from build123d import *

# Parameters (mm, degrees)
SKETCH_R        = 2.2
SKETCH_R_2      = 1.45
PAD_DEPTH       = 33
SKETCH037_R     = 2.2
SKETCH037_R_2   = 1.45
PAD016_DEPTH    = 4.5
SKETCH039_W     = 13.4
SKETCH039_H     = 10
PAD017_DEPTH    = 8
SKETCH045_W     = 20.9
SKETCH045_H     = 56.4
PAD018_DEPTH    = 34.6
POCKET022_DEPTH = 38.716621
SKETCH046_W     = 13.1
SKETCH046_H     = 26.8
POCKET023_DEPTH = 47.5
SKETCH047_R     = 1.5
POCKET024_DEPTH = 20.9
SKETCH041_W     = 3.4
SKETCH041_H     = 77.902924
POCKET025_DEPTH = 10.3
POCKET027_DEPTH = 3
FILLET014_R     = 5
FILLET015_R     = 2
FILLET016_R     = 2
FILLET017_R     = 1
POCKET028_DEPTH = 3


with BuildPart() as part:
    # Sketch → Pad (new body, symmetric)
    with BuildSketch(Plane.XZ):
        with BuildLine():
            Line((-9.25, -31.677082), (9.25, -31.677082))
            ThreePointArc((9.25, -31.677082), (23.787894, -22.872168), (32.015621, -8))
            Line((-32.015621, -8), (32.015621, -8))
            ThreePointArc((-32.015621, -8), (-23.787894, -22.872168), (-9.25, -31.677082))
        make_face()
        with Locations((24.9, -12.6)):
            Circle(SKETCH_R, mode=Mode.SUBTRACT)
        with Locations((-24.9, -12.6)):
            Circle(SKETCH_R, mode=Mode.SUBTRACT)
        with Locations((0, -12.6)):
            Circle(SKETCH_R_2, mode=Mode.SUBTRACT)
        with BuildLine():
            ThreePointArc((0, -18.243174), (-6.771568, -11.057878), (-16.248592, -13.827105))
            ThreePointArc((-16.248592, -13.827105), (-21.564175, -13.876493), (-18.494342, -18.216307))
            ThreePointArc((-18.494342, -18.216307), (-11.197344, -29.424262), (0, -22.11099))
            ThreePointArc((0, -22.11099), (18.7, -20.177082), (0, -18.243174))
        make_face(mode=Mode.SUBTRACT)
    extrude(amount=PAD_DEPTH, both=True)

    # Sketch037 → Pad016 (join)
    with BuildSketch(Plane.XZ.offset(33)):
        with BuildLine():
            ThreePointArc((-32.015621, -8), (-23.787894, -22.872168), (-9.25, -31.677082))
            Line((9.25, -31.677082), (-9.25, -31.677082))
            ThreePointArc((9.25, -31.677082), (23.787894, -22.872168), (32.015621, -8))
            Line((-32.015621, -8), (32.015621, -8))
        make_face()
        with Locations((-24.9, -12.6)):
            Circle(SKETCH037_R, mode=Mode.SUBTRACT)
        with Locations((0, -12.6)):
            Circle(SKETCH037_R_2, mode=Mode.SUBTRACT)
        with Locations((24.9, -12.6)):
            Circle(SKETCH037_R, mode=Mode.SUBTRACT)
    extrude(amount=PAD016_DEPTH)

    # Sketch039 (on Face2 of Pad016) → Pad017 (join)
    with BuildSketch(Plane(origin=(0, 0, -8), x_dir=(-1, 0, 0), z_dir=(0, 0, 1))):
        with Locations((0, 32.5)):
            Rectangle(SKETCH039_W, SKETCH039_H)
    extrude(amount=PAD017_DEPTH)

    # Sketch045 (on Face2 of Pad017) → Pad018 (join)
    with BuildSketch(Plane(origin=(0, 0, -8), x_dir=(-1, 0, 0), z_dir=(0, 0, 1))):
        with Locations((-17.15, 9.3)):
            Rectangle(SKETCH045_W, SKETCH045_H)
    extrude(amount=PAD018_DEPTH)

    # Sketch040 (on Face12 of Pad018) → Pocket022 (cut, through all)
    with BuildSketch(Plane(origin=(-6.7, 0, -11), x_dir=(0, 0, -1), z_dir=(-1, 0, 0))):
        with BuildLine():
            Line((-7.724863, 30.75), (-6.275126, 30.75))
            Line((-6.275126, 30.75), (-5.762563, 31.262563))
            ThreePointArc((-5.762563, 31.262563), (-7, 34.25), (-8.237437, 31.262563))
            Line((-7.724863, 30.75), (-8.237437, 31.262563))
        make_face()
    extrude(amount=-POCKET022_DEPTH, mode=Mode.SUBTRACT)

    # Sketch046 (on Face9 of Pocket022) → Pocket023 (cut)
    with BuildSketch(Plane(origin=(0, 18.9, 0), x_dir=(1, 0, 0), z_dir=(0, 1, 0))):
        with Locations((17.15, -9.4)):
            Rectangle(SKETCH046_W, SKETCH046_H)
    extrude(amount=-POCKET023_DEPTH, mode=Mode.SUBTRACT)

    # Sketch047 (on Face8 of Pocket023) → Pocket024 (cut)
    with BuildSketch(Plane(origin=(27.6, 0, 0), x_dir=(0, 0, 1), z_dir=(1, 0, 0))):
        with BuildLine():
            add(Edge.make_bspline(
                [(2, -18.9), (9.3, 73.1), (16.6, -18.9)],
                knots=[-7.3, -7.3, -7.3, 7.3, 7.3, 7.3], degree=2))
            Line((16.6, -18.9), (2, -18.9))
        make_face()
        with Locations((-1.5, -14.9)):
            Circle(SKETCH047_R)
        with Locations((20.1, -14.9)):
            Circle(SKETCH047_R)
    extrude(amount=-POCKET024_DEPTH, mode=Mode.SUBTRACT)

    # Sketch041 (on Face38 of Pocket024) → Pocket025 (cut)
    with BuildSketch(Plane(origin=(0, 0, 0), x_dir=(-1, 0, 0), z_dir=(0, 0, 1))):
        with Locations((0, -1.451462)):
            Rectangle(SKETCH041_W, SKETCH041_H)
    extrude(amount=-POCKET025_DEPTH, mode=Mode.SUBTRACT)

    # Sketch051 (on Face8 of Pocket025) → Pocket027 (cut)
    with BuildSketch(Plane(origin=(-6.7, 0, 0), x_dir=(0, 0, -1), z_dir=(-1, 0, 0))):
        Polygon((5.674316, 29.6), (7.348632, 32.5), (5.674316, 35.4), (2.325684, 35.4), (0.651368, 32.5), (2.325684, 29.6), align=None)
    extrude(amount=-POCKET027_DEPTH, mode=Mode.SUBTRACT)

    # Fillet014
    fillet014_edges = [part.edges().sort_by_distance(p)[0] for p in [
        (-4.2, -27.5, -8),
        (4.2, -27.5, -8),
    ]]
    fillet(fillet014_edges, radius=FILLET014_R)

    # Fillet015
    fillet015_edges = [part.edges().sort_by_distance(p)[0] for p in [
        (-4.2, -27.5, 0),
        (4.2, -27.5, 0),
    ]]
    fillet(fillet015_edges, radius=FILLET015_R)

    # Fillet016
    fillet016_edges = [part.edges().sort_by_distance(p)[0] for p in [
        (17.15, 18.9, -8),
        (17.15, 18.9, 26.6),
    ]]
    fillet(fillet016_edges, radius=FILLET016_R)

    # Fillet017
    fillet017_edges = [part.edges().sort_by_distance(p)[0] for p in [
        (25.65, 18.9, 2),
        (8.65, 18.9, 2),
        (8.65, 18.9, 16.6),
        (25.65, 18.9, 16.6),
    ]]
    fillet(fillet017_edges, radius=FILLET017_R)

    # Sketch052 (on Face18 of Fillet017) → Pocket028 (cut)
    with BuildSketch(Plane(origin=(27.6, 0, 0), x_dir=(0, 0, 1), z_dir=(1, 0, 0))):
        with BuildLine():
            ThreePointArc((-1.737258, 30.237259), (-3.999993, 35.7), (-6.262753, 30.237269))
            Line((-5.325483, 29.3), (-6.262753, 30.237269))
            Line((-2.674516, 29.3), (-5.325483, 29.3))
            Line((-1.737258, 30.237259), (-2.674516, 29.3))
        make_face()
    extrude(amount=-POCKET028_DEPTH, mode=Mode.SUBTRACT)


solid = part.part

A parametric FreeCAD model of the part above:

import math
import FreeCAD as App
import Part
import Sketcher

V = App.Vector
Q = App.Units.Quantity


def edges_at(feature, points):
    """Names of the edges that pass closest to the given points."""
    edges = feature.Shape.Edges
    near = lambda p: min(range(len(edges)), key=lambda i: edges[i].distToShape(Part.Vertex(*p))[0])
    return sorted({f"Edge{near(p) + 1}" for p in points})


def add_polygon(sketch, points):
    """Adds a closed chain of lines whose ends are joined by coincident constraints."""
    first, n = sketch.GeometryCount, len(points)
    for a, b in zip(points, points[1:] + points[:1]):
        sketch.addGeometry(Part.LineSegment(App.Vector(*a, 0), App.Vector(*b, 0)), False)
    for i in range(n):
        sketch.addConstraint(Sketcher.Constraint("Coincident", first + i, 2, first + (i + 1) % n, 1))

doc = App.newDocument("Part")
body = doc.addObject("PartDesign::Body", "Body")

# Sketch on XZ plane
sketch1 = body.newObject("Sketcher::SketchObject", "Sketch")
sketch1.AttachmentSupport = (doc.getObject("XZ_Plane"), [""])
sketch1.MapMode = "FlatFace"
sketch1.addGeometry([
    Part.LineSegment(V(-9.2, -31.7, 0), V(9.2, -31.7, 0)),  # 0
    Part.ArcOfCircle(Part.Circle(V(0, 0, 0), V(0, 0, 1), 33), math.radians(-74), math.radians(-14)),  # 1
    Part.LineSegment(V(32, -8, 0), V(-32, -8, 0)),  # 2
    Part.ArcOfCircle(Part.Circle(V(0, 0, 0), V(0, 0, 1), 33), math.radians(-166), math.radians(-106)),  # 3
    Part.ArcOfCircle(Part.Circle(V(-9.2, -20.2, 0), V(0, 0, 1), 9.4), math.radians(12), math.radians(138)),  # 4
    Part.ArcOfCircle(Part.Circle(V(9.2, -20.2, 0), V(0, 0, 1), 9.5), math.radians(-168), math.radians(168)),  # 5
    Part.ArcOfCircle(Part.Circle(V(-9.2, -20.2, 0), V(0, 0, 1), 9.4), math.radians(168), math.radians(348)),  # 6
    Part.ArcOfCircle(Part.Circle(V(-18.9, -15.2, 0), V(0, 0, 1), 3), math.radians(28), math.radians(278)),  # 7
    Part.Circle(V(-24.9, -12.6, 0), V(0, 0, 1), 2.2),  # 8
    Part.Circle(V(0, -12.6, 0), V(0, 0, 1), 1.4),  # 9
    Part.Circle(V(24.9, -12.6, 0), V(0, 0, 1), 2.2),  # 10
], False)
sketch1.addConstraint([
    Sketcher.Constraint("Coincident", 0, 2, 1, 1),
    Sketcher.Constraint("Coincident", 1, 2, 2, 1),
    Sketcher.Constraint("Coincident", 2, 2, 3, 1),
    Sketcher.Constraint("Coincident", 3, 2, 0, 1),
    Sketcher.Constraint("Coincident", 4, 1, 5, 2),
    Sketcher.Constraint("Coincident", 5, 1, 6, 2),
    Sketcher.Constraint("Coincident", 6, 1, 7, 2),
    Sketcher.Constraint("Coincident", 7, 1, 4, 2),
    Sketcher.Constraint("Horizontal", 0),
    Sketcher.Constraint("Horizontal", 2),
    Sketcher.Constraint("Coincident", 1, 3, -1, 1),
    Sketcher.Constraint("Coincident", 3, 3, -1, 1),
    Sketcher.Constraint("Coincident", 6, 3, 4, 3),
    Sketcher.Constraint("Equal", 1, 3),
    Sketcher.Constraint("Equal", 4, 5),
    Sketcher.Constraint("Equal", 5, 6),
    Sketcher.Constraint("Equal", 8, 10),
    Sketcher.Constraint("Symmetric", 4, 3, 5, 3, -2),
    Sketcher.Constraint("Symmetric", 8, 3, 10, 3, -2),
    Sketcher.Constraint("PointOnObject", 9, 3, -2),
    Sketcher.Constraint("Horizontal", 8, 3, 9, 3),
    Sketcher.Constraint("Vertical", 5, 3, 0, 2),
    Sketcher.Constraint("Radius", 7, Q("3 mm")),
    Sketcher.Constraint("Diameter", 8, Q("4.4 mm")),
    Sketcher.Constraint("Diameter", 9, Q("2.9 mm")),
    Sketcher.Constraint("Radius", 4, Q("9.45 mm")),
    Sketcher.Constraint("DistanceX", 0, 1, 0, 2, Q("18.5 mm")),
    Sketcher.Constraint("DistanceY", 1, 2, -1, 1, Q("8 mm")),
    Sketcher.Constraint("DistanceX", 8, 3, -1, 1, Q("24.9 mm")),
    Sketcher.Constraint("DistanceY", 8, 3, -1, 1, Q("12.6 mm")),
    Sketcher.Constraint("DistanceY", 0, 2, 5, 3, Q("11.5 mm")),
    Sketcher.Constraint("Radius", 1, Q("33.000004 mm")),
    Sketcher.Constraint("DistanceX", 7, 1, -1, 1, Q("16.248592 mm")),
    Sketcher.Constraint("DistanceX", 7, 3, 6, 3, Q("9.643458 mm")),
])
pad1 = body.newObject("PartDesign::Pad", "Pad")
pad1.Profile = sketch1
pad1.Length = 66
pad1.Midplane = True

# Sketch on XZ plane
sketch2 = body.newObject("Sketcher::SketchObject", "Sketch001")
sketch2.AttachmentSupport = (doc.getObject("XZ_Plane"), [""])
sketch2.MapMode = "FlatFace"
sketch2.AttachmentOffset = App.Placement(V(0, 0, 33), App.Rotation())
sketch2.addGeometry([
    Part.ArcOfCircle(Part.Circle(V(0, 0, 0), V(0, 0, 1), 33), math.radians(-166), math.radians(-106)),  # 0
    Part.LineSegment(V(-9.2, -31.7, 0), V(9.2, -31.7, 0)),  # 1
    Part.ArcOfCircle(Part.Circle(V(0, 0, 0), V(0, 0, 1), 33), math.radians(-74), math.radians(-14)),  # 2
    Part.LineSegment(V(32, -8, 0), V(-32, -8, 0)),  # 3
    Part.Circle(V(-24.9, -12.6, 0), V(0, 0, 1), 2.2),  # 4
    Part.Circle(V(0, -12.6, 0), V(0, 0, 1), 1.4),  # 5
    Part.Circle(V(24.9, -12.6, 0), V(0, 0, 1), 2.2),  # 6
], False)
sketch2.addConstraint([
    Sketcher.Constraint("Coincident", 0, 2, 1, 1),
    Sketcher.Constraint("Coincident", 1, 2, 2, 1),
    Sketcher.Constraint("Coincident", 2, 2, 3, 1),
    Sketcher.Constraint("Coincident", 3, 2, 0, 1),
    Sketcher.Constraint("Horizontal", 1),
    Sketcher.Constraint("Horizontal", 3),
    Sketcher.Constraint("Coincident", 0, 3, -1, 1),
    Sketcher.Constraint("Coincident", 2, 3, -1, 1),
    Sketcher.Constraint("Equal", 0, 2),
    Sketcher.Constraint("Equal", 4, 6),
    Sketcher.Constraint("Symmetric", 4, 3, 6, 3, -2),
    Sketcher.Constraint("PointOnObject", 5, 3, -2),
    Sketcher.Constraint("Horizontal", 4, 3, 5, 3),
    Sketcher.Constraint("Diameter", 4, Q("4.4 mm")),
    Sketcher.Constraint("Diameter", 5, Q("2.9 mm")),
    Sketcher.Constraint("DistanceX", 1, 1, 1, 2, Q("18.5 mm")),
    Sketcher.Constraint("DistanceY", 2, 2, -1, 1, Q("8 mm")),
    Sketcher.Constraint("DistanceX", 4, 3, -1, 1, Q("24.9 mm")),
    Sketcher.Constraint("DistanceY", 4, 3, -1, 1, Q("12.6 mm")),
    Sketcher.Constraint("Radius", 0, Q("33.000004 mm")),
])
pad2 = body.newObject("PartDesign::Pad", "Pad001")
pad2.Profile = sketch2
pad2.Length = 4.5

# Sketch on XY plane
sketch3 = body.newObject("Sketcher::SketchObject", "Sketch002")
sketch3.AttachmentSupport = (doc.getObject("XY_Plane"), [""])
sketch3.MapMode = "FlatFace"
sketch3.AttachmentOffset = App.Placement(V(0, 0, -8), App.Rotation())
add_polygon(sketch3, [(7, -38), (7, -28), (-7, -28), (-7, -38)])  # lines 0-3
sketch3.addConstraint([
    Sketcher.Constraint("Vertical", 0),
    Sketcher.Constraint("Horizontal", 1),
    Sketcher.Constraint("Vertical", 2),
    Sketcher.Constraint("Horizontal", 3),
    Sketcher.Constraint("DistanceY", 0, 1, 0, 2, Q("10 mm")),
    Sketcher.Constraint("DistanceX", 1, 2, 1, 1, Q("13.4 mm")),
    Sketcher.Constraint("DistanceX", -1, 1, 0, 2, Q("6.7 mm")),
    Sketcher.Constraint("DistanceY", 0, 2, -1, 1, Q("27.5 mm")),
])
pad3 = body.newObject("PartDesign::Pad", "Pad002")
pad3.Profile = sketch3
pad3.Length = 8

# Sketch on XY plane
sketch4 = body.newObject("Sketcher::SketchObject", "Sketch003")
sketch4.AttachmentSupport = (doc.getObject("XY_Plane"), [""])
sketch4.MapMode = "FlatFace"
sketch4.AttachmentOffset = App.Placement(V(0, 0, -8), App.Rotation())
add_polygon(sketch4, [(28, -38), (28, 19), (7, 19), (7, -38)])  # lines 0-3
sketch4.addConstraint([
    Sketcher.Constraint("Vertical", 0),
    Sketcher.Constraint("Horizontal", 1),
    Sketcher.Constraint("Vertical", 2),
    Sketcher.Constraint("Horizontal", 3),
    Sketcher.Constraint("DistanceX", 1, 2, 1, 1, Q("20.9 mm")),
    Sketcher.Constraint("DistanceY", 0, 1, 0, 2, Q("56.4 mm")),
    Sketcher.Constraint("DistanceX", -1, 1, 0, 2, Q("27.6 mm")),
    Sketcher.Constraint("DistanceY", -1, 1, 0, 2, Q("18.9 mm")),
])
pad4 = body.newObject("PartDesign::Pad", "Pad003")
pad4.Profile = sketch4
pad4.Length = 34.6

# Sketch on YZ plane
sketch5 = body.newObject("Sketcher::SketchObject", "Sketch004")
sketch5.AttachmentSupport = (doc.getObject("YZ_Plane"), [""])
sketch5.MapMode = "FlatFace"
sketch5.AttachmentOffset = App.Placement(V(0, 0, -6.7), App.Rotation())
sketch5.addGeometry([
    Part.LineSegment(V(-30.8, -3.3, 0), V(-30.8, -4.7, 0)),
    Part.LineSegment(V(-30.8, -4.7, 0), V(-31.3, -5.2, 0)),
    Part.ArcOfCircle(Part.Circle(V(-32.5, -4, 0), V(0, 0, 1), 1.8), math.radians(45), math.radians(315)),
    Part.LineSegment(V(-31.3, -2.8, 0), V(-30.8, -3.3, 0)),
], False)
sketch5.addConstraint([
    Sketcher.Constraint("Coincident", 0, 2, 1, 1),
    Sketcher.Constraint("Tangent", 1, 2, 2, 2),
    Sketcher.Constraint("Coincident", 2, 1, 3, 1),
    Sketcher.Constraint("Coincident", 3, 2, 0, 1),
    Sketcher.Constraint("Vertical", 0),
    Sketcher.Constraint("Vertical", 1, 2, 2, 1),
    Sketcher.Constraint("Angle", 1, Q("-135 deg")),
    Sketcher.Constraint("Radius", 2, Q("1.75 mm")),
    Sketcher.Constraint("DistanceY", 2, 3, -1, 1, Q("4 mm")),
    Sketcher.Constraint("DistanceX", 2, 3, -1, 1, Q("32.5 mm")),
    Sketcher.Constraint("DistanceX", 0, 2, -1, 1, Q("30.75 mm")),
    Sketcher.Constraint("DistanceY", 1, 2, 3, 2, Q("1.9623 mm")),
])
pocket1 = body.newObject("PartDesign::Pocket", "Pocket")
pocket1.Profile = sketch5
pocket1.Type = "ThroughAll"
pocket1.Reversed = True

# Sketch on XZ plane
sketch6 = body.newObject("Sketcher::SketchObject", "Sketch005")
sketch6.AttachmentSupport = (doc.getObject("XZ_Plane"), [""])
sketch6.MapMode = "FlatFace"
sketch6.AttachmentOffset = App.Placement(V(0, 0, -18.9), App.Rotation())
add_polygon(sketch6, [(11, -4), (11, 23), (24, 23), (24, -4)])  # lines 0-3
sketch6.addConstraint([
    Sketcher.Constraint("Vertical", 0),
    Sketcher.Constraint("Horizontal", 1),
    Sketcher.Constraint("Vertical", 2),
    Sketcher.Constraint("Horizontal", 3),
    Sketcher.Constraint("DistanceX", 1, 1, 1, 2, Q("13.1 mm")),
    Sketcher.Constraint("DistanceY", 0, 1, 0, 2, Q("26.8 mm")),
    Sketcher.Constraint("DistanceY", 2, 2, -1, 1, Q("4 mm")),
    Sketcher.Constraint("DistanceX", -1, 1, 0, 2, Q("10.6 mm")),
])
pocket2 = body.newObject("PartDesign::Pocket", "Pocket001")
pocket2.Profile = sketch6
pocket2.Length = 47.5
pocket2.Reversed = True

# Sketch on YZ plane
sketch7 = body.newObject("Sketcher::SketchObject", "Sketch006")
sketch7.AttachmentSupport = (doc.getObject("YZ_Plane"), [""])
sketch7.MapMode = "FlatFace"
sketch7.AttachmentOffset = App.Placement(V(0, 0, 27.6), App.Rotation())
sketch7.addGeometry([
    Part.BSplineCurve([V(18.9, 2, 0), V(-73.1, 9.3, 0), V(18.9, 16.6, 0)], [3, 3], [-7.3, 7.3], False, 2, [1, 1, 1], False),
    Part.LineSegment(V(18.9, 2, 0), V(18.9, 16.6, 0)),
    Part.Circle(V(14.9, -1.5, 0), V(0, 0, 1), 1.5),
    Part.Circle(V(14.9, 20.1, 0), V(0, 0, 1), 1.5),
], False)
sketch7.addConstraint([
    Sketcher.Constraint("Block", 0),
    Sketcher.Constraint("Coincident", 0, 1, 1, 1),
    Sketcher.Constraint("Coincident", 1, 2, 0, 2),
    Sketcher.Constraint("Equal", 2, 3),
    Sketcher.Constraint("Vertical", 2, 3, 3, 3),
    Sketcher.Constraint("Diameter", 2, Q("3 mm")),
    Sketcher.Constraint("DistanceX", 3, 3, 1, 2, Q("4 mm")),
    Sketcher.Constraint("DistanceY", 2, 3, -1, 1, Q("1.5 mm")),
    Sketcher.Constraint("DistanceY", -1, 1, 3, 3, Q("20.1 mm")),
])
pocket3 = body.newObject("PartDesign::Pocket", "Pocket002")
pocket3.Profile = sketch7
pocket3.Length = 20.9

# Sketch on XY plane
sketch8 = body.newObject("Sketcher::SketchObject", "Sketch007")
sketch8.AttachmentSupport = (doc.getObject("XY_Plane"), [""])
sketch8.MapMode = "FlatFace"
add_polygon(sketch8, [(1.7, -37.5), (1.7, 40.4), (-1.7, 40.4), (-1.7, -37.5)])  # lines 0-3
sketch8.addConstraint([
    Sketcher.Constraint("Vertical", 0),
    Sketcher.Constraint("Horizontal", 1),
    Sketcher.Constraint("Vertical", 2),
    Sketcher.Constraint("Horizontal", 3),
    Sketcher.Constraint("DistanceX", 1, 2, 1, 1, Q("3.4 mm")),
    Sketcher.Constraint("DistanceX", -1, 1, 0, 2, Q("1.7 mm")),
    Sketcher.Constraint("DistanceY", 2, 2, -1, 1, Q("37.5 mm")),
    Sketcher.Constraint("DistanceY", 0, 1, 0, 2, Q("77.902924 mm")),
])
pocket4 = body.newObject("PartDesign::Pocket", "Pocket003")
pocket4.Profile = sketch8
pocket4.Length = 10.3

# Sketch on YZ plane
sketch9 = body.newObject("Sketcher::SketchObject", "Sketch008")
sketch9.AttachmentSupport = (doc.getObject("YZ_Plane"), [""])
sketch9.MapMode = "FlatFace"
sketch9.AttachmentOffset = App.Placement(V(0, 0, -6.7), App.Rotation())
add_polygon(sketch9, [(-29.6, -5.7), (-32.5, -7.3), (-35.4, -5.7), (-35.4, -2.3), (-32.5, -0.7), (-29.6, -2.3)])  # lines 0-5
sketch9.addConstraint([
    Sketcher.Constraint("Vertical", 2),
    Sketcher.Constraint("Vertical", 5),
    Sketcher.Constraint("Parallel", 0, 3),
    Sketcher.Constraint("Parallel", 1, 4),
    Sketcher.Constraint("Horizontal", 2, 2, 4, 2),
    Sketcher.Constraint("Horizontal", 1, 2, 5, 2),
    Sketcher.Constraint("Vertical", 0, 2, 3, 2),
    Sketcher.Constraint("Angle", 0, Q("-149.999997 deg")),
    Sketcher.Constraint("DistanceX", 0, 2, -1, 1, Q("32.5 mm")),
    Sketcher.Constraint("DistanceX", 1, 2, -1, 1, Q("35.4 mm")),
    Sketcher.Constraint("DistanceY", 2, 1, 2, 2, Q("3.348632 mm")),
    Sketcher.Constraint("DistanceY", 0, 2, -1, 1, Q("7.348632 mm")),
])
pocket5 = body.newObject("PartDesign::Pocket", "Pocket004")
pocket5.Profile = sketch9
pocket5.Length = 3
pocket5.Reversed = True
doc.recompute()

fillet = body.newObject("PartDesign::Fillet", "Fillet")
fillet.Base = (pocket5, edges_at(pocket5, [(-4.2, -27.5, -8), (4.2, -27.5, -8)]))
fillet.Radius = 5
doc.recompute()

fillet2 = body.newObject("PartDesign::Fillet", "Fillet001")
fillet2.Base = (fillet, edges_at(fillet, [(-4.2, -27.5, 0), (4.2, -27.5, 0)]))
fillet2.Radius = 2
doc.recompute()

fillet3 = body.newObject("PartDesign::Fillet", "Fillet002")
fillet3.Base = (fillet2, edges_at(fillet2, [(17.15, 18.9, -8), (17.15, 18.9, 26.6)]))
fillet3.Radius = 2
doc.recompute()

fillet4 = body.newObject("PartDesign::Fillet", "Fillet003")
fillet4.Base = (fillet3, edges_at(fillet3, [
    (25.65, 18.9, 2),
    (8.65, 18.9, 2),
    (8.65, 18.9, 16.6),
    (25.65, 18.9, 16.6),
]))
fillet4.Radius = 1

# Sketch on YZ plane
sketch10 = body.newObject("Sketcher::SketchObject", "Sketch009")
sketch10.AttachmentSupport = (doc.getObject("YZ_Plane"), [""])
sketch10.MapMode = "FlatFace"
sketch10.AttachmentOffset = App.Placement(V(0, 0, 27.6), App.Rotation())
sketch10.addGeometry([
    Part.ArcOfCircle(Part.Circle(V(-32.5, -4, 0), V(0, 0, 1), 3.2), math.radians(45), math.radians(315)),
    Part.LineSegment(V(-30.2, -6.3, 0), V(-29.3, -5.3, 0)),
    Part.LineSegment(V(-29.3, -5.3, 0), V(-29.3, -2.7, 0)),
    Part.LineSegment(V(-29.3, -2.7, 0), V(-30.2, -1.7, 0)),
], False)
sketch10.addConstraint([
    Sketcher.Constraint("Coincident", 0, 2, 1, 1),
    Sketcher.Constraint("Coincident", 1, 2, 2, 1),
    Sketcher.Constraint("Coincident", 2, 2, 3, 1),
    Sketcher.Constraint("Tangent", 3, 2, 0, 1),
    Sketcher.Constraint("Vertical", 2),
    Sketcher.Constraint("Perpendicular", 1, 3),
    Sketcher.Constraint("Radius", 0, Q("3.2 mm")),
    Sketcher.Constraint("DistanceY", 0, 3, -1, 1, Q("4 mm")),
    Sketcher.Constraint("DistanceX", 0, 3, -1, 1, Q("32.5 mm")),
    Sketcher.Constraint("DistanceX", 1, 2, -1, 1, Q("29.3 mm")),
    Sketcher.Constraint("Distance", 1, Q("1.325499 mm")),
    Sketcher.Constraint("DistanceX", 0, 2, -1, 1, Q("30.237269 mm")),
])
pocket6 = body.newObject("PartDesign::Pocket", "Pocket005")
pocket6.Profile = sketch10
pocket6.Length = 3

doc.recompute()
